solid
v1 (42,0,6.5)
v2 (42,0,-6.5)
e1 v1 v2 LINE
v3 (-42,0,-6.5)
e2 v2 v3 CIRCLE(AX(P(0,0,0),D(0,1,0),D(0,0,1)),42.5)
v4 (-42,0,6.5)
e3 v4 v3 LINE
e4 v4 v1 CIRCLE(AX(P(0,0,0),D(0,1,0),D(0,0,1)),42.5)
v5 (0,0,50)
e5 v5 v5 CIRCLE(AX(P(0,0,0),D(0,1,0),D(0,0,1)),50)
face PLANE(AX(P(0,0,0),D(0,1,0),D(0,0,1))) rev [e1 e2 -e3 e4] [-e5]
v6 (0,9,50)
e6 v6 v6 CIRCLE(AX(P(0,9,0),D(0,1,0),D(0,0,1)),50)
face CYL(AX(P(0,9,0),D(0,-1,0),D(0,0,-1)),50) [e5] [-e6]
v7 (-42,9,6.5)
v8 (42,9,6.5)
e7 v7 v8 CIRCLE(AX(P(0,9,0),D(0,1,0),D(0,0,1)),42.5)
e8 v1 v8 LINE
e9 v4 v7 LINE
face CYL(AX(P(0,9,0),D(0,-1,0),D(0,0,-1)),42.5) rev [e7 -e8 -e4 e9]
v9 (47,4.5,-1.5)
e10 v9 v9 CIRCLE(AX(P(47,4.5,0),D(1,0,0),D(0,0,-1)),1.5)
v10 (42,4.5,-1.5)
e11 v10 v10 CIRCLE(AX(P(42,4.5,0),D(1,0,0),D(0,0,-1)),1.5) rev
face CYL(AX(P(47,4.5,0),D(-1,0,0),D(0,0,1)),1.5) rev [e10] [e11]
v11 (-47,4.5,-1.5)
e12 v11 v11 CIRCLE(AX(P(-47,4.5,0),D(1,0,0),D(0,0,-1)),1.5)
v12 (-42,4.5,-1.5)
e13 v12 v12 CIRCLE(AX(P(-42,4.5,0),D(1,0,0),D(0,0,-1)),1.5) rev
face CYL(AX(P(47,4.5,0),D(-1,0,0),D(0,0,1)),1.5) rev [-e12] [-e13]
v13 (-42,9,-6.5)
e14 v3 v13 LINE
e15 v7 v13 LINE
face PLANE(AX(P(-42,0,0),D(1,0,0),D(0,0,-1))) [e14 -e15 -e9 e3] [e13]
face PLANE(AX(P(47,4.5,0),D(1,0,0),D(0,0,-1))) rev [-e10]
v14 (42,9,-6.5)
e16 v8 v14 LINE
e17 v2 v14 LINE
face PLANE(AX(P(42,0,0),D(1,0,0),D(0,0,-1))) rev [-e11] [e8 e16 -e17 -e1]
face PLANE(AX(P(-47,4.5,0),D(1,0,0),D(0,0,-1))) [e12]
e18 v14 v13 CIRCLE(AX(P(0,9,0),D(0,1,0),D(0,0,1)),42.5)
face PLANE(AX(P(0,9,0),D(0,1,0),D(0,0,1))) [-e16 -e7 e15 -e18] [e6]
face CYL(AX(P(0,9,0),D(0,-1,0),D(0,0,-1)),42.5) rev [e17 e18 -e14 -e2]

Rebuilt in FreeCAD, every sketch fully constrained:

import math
import FreeCAD as App
import Part
import Sketcher
from FreeCAD import Vector
Q = App.Units.Quantity

doc = App.newDocument("Part")
body = doc.addObject("PartDesign::Body", "Body")

# Sketch on XZ plane
sketch1 = body.newObject("Sketcher::SketchObject", "Sketch")
sketch1.AttachmentSupport = (doc.getObject("XZ_Plane"), [""])
sketch1.MapMode = "FlatFace"
sketch1.addGeometry([
    Part.Circle(Vector(0, 0, 0), Vector(0, 0, 1), 50),
    Part.Circle(Vector(0, 0, 0), Vector(0, 0, 1), 42),
], False)
sketch1.addConstraint([
    Sketcher.Constraint("Coincident", 0, 3, -1, 1),
    Sketcher.Constraint("Coincident", 1, 3, -1, 1),
    Sketcher.Constraint("Diameter", 0, Q("100 mm")),
    Sketcher.Constraint("Diameter", 1, Q("85 mm")),
])
pad1 = body.newObject("PartDesign::Pad", "Pad")
pad1.Profile = sketch1
pad1.Length = 9
pad1.Reversed = True

# Sketch on XZ plane
sketch2 = body.newObject("Sketcher::SketchObject", "Sketch001")
sketch2.AttachmentSupport = (doc.getObject("XZ_Plane"), [""])
sketch2.MapMode = "FlatFace"
sketch2.addGeometry([
    Part.ArcOfCircle(Part.Circle(Vector(0, 0, 0), Vector(0, 0, 1), 42), math.radians(171.2), math.radians(188.8)),  # 0
    Part.LineSegment(Vector(-42, 6, 0), Vector(-42, -6, 0)),  # 1
    Part.LineSegment(Vector(42, -6, 0), Vector(42, 6, 0)),  # 2
    Part.ArcOfCircle(Part.Circle(Vector(0, 0, 0), Vector(0, 0, 1), 42), math.radians(0), math.radians(8.8)),  # 3
    Part.ArcOfCircle(Part.Circle(Vector(0, 0, 0), Vector(0, 0, 1), 42), math.radians(-8.8), math.radians(0)),  # 4
], False)
sketch2.addConstraint([
    Sketcher.Constraint("Coincident", 0, 1, 1, 1),
    Sketcher.Constraint("Coincident", 1, 2, 0, 2),
    Sketcher.Constraint("Coincident", 2, 2, 3, 2),
    Sketcher.Constraint("Tangent", 3, 1, 4, 2),
    Sketcher.Constraint("Coincident", 4, 1, 2, 1),
    Sketcher.Constraint("Vertical", 1),
    Sketcher.Constraint("Vertical", 2),
    Sketcher.Constraint("Coincident", 0, 3, -1, 1),
    Sketcher.Constraint("Coincident", 3, 3, -1, 1),
    Sketcher.Constraint("Equal", 0, 3),
    Sketcher.Constraint("Equal", 3, 4),
    Sketcher.Constraint("PointOnObject", 3, 1, -1),
    Sketcher.Constraint("Horizontal", 0, 1, 2, 2),
    Sketcher.Constraint("Radius", 0, Q("42.5 mm")),
    Sketcher.Constraint("DistanceY", 1, 2, 1, 1, Q("13 mm")),
])
pad2 = body.newObject("PartDesign::Pad", "Pad001")
pad2.Profile = sketch2
pad2.Length = 9
pad2.Reversed = True

# Sketch on YZ plane
sketch3 = body.newObject("Sketcher::SketchObject", "Sketch002")
sketch3.AttachmentSupport = (doc.getObject("YZ_Plane"), [""])
sketch3.MapMode = "FlatFace"
sketch3.AttachmentOffset = App.Placement(Vector(0, 0, -42), App.Rotation())
sketch3.addGeometry(Part.Circle(Vector(4.5, 0, 0), Vector(0, 0, 1), 1.5), False)
sketch3.addConstraint([
    Sketcher.Constraint("PointOnObject", 0, 3, -1),
    Sketcher.Constraint("Diameter", 0, Q("3 mm")),
    Sketcher.Constraint("DistanceX", -1, 1, 0, 3, Q("4.5 mm")),
])
pocket1 = body.newObject("PartDesign::Pocket", "Pocket")
pocket1.Profile = sketch3
pocket1.Type = "TwoLengths"
pocket1.Length = 89
pocket1.Length2 = 5
pocket1.Reversed = True

doc.recompute()
